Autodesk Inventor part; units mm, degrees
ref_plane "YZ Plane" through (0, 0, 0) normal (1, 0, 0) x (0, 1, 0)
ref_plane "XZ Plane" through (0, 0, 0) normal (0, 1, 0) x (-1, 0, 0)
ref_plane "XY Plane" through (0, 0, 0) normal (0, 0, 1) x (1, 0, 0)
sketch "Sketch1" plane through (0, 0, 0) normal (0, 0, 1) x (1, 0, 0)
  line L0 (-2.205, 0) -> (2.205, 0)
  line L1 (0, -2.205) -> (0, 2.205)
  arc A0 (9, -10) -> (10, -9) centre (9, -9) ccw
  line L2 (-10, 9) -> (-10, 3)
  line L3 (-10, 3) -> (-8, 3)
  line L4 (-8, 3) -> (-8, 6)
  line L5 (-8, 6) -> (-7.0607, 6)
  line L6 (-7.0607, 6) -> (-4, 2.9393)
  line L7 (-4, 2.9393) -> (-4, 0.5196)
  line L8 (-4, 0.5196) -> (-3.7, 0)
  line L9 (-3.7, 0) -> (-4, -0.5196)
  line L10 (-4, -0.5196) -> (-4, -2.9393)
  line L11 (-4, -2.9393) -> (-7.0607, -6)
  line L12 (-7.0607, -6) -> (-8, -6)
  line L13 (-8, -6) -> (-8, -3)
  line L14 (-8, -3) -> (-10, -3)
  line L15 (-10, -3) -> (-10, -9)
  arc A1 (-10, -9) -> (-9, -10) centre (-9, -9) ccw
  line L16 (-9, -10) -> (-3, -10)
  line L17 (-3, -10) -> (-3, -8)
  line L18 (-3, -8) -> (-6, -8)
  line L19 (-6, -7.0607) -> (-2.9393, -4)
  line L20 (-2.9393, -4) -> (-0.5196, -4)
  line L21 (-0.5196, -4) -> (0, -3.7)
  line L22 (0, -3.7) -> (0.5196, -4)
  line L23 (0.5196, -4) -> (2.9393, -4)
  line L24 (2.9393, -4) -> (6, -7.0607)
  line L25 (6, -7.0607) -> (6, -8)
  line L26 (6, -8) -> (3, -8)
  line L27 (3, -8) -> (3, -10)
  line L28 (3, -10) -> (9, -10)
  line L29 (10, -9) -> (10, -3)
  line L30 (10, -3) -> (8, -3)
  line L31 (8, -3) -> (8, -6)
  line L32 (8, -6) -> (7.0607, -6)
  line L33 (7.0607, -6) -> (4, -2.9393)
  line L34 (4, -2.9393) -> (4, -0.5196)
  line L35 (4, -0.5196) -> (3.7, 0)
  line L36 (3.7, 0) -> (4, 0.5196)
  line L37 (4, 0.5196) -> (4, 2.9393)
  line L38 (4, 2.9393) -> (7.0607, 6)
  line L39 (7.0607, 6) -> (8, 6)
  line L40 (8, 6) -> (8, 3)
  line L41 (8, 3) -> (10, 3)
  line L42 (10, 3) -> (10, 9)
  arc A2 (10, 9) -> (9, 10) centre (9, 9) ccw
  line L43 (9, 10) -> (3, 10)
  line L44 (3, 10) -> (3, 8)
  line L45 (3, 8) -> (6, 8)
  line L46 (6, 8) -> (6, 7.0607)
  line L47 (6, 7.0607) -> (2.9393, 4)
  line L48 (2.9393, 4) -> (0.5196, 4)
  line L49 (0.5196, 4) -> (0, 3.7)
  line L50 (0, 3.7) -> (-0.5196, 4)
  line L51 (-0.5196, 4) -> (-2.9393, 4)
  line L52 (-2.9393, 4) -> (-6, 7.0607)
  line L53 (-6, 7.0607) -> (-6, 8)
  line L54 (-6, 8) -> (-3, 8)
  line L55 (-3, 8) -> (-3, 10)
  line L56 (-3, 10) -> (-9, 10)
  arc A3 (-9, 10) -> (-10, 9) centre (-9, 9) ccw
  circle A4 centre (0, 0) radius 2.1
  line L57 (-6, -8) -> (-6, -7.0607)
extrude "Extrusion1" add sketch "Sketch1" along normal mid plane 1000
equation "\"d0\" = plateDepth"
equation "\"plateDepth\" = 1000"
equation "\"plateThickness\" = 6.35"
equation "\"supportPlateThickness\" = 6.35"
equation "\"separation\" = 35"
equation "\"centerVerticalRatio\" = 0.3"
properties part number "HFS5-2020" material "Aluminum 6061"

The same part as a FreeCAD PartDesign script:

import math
import FreeCAD as App
import Part
import Sketcher

V = App.Vector
Q = App.Units.Quantity

doc = App.newDocument("Part")
body = doc.addObject("PartDesign::Body", "Body")

sketch1 = body.newObject("Sketcher::SketchObject", "Sketch")
sketch1.AttachmentSupport = (doc.getObject("XY_Plane"), [""])
sketch1.MapMode = "FlatFace"
sketch1.addGeometry(Part.LineSegment(V(3, -10, 0), V(9, -10, 0)), False)
sketch1.addGeometry(Part.ArcOfCircle(Part.Circle(V(9, -9, 0), V(0, 0, 1), 1), math.radians(-90), math.radians(0)), False)
sketch1.addGeometry(Part.LineSegment(V(10, -9, 0), V(10, -3, 0)), False)
sketch1.addGeometry(Part.LineSegment(V(10, -3, 0), V(8, -3, 0)), False)
sketch1.addGeometry(Part.LineSegment(V(8, -3, 0), V(8, -6, 0)), False)
sketch1.addGeometry(Part.LineSegment(V(8, -6, 0), V(7.0607, -6, 0)), False)
sketch1.addGeometry(Part.LineSegment(V(7.0607, -6, 0), V(4, -2.9393, 0)), False)
sketch1.addGeometry(Part.LineSegment(V(4, -2.9393, 0), V(4, -0.5196, 0)), False)
sketch1.addGeometry(Part.LineSegment(V(4, -0.5196, 0), V(3.7, 0, 0)), False)
sketch1.addGeometry(Part.LineSegment(V(3.7, 0, 0), V(4, 0.5196, 0)), False)
sketch1.addGeometry(Part.LineSegment(V(4, 0.5196, 0), V(4, 2.9393, 0)), False)
sketch1.addGeometry(Part.LineSegment(V(4, 2.9393, 0), V(7.0607, 6, 0)), False)
sketch1.addGeometry(Part.LineSegment(V(7.0607, 6, 0), V(8, 6, 0)), False)
sketch1.addGeometry(Part.LineSegment(V(8, 6, 0), V(8, 3, 0)), False)
sketch1.addGeometry(Part.LineSegment(V(8, 3, 0), V(10, 3, 0)), False)
sketch1.addGeometry(Part.LineSegment(V(10, 3, 0), V(10, 9, 0)), False)
sketch1.addGeometry(Part.ArcOfCircle(Part.Circle(V(9, 9, 0), V(0, 0, 1), 1), math.radians(0), math.radians(90)), False)
sketch1.addGeometry(Part.LineSegment(V(9, 10, 0), V(3, 10, 0)), False)
sketch1.addGeometry(Part.LineSegment(V(3, 10, 0), V(3, 8, 0)), False)
sketch1.addGeometry(Part.LineSegment(V(3, 8, 0), V(6, 8, 0)), False)
sketch1.addGeometry(Part.LineSegment(V(6, 8, 0), V(6, 7.0607, 0)), False)
sketch1.addGeometry(Part.LineSegment(V(6, 7.0607, 0), V(2.9393, 4, 0)), False)
sketch1.addGeometry(Part.LineSegment(V(2.9393, 4, 0), V(0.5196, 4, 0)), False)
sketch1.addGeometry(Part.LineSegment(V(0.5196, 4, 0), V(0, 3.7, 0)), False)
sketch1.addGeometry(Part.LineSegment(V(0, 3.7, 0), V(-0.5196, 4, 0)), False)
sketch1.addGeometry(Part.LineSegment(V(-0.5196, 4, 0), V(-2.9393, 4, 0)), False)
sketch1.addGeometry(Part.LineSegment(V(-2.9393, 4, 0), V(-6, 7.0607, 0)), False)
sketch1.addGeometry(Part.LineSegment(V(-6, 7.0607, 0), V(-6, 8, 0)), False)
sketch1.addGeometry(Part.LineSegment(V(-6, 8, 0), V(-3, 8, 0)), False)
sketch1.addGeometry(Part.LineSegment(V(-3, 8, 0), V(-3, 10, 0)), False)
sketch1.addGeometry(Part.LineSegment(V(-3, 10, 0), V(-9, 10, 0)), False)
sketch1.addGeometry(Part.ArcOfCircle(Part.Circle(V(-9, 9, 0), V(0, 0, 1), 1), math.radians(90), math.radians(180)), False)
sketch1.addGeometry(Part.LineSegment(V(-10, 9, 0), V(-10, 3, 0)), False)
sketch1.addGeometry(Part.LineSegment(V(-10, 3, 0), V(-8, 3, 0)), False)
sketch1.addGeometry(Part.LineSegment(V(-8, 3, 0), V(-8, 6, 0)), False)
sketch1.addGeometry(Part.LineSegment(V(-8, 6, 0), V(-7.0607, 6, 0)), False)
sketch1.addGeometry(Part.LineSegment(V(-7.0607, 6, 0), V(-4, 2.9393, 0)), False)
sketch1.addGeometry(Part.LineSegment(V(-4, 2.9393, 0), V(-4, 0.5196, 0)), False)
sketch1.addGeometry(Part.LineSegment(V(-4, 0.5196, 0), V(-3.7, 0, 0)), False)
sketch1.addGeometry(Part.LineSegment(V(-3.7, 0, 0), V(-4, -0.5196, 0)), False)
sketch1.addGeometry(Part.LineSegment(V(-4, -0.5196, 0), V(-4, -2.9393, 0)), False)
sketch1.addGeometry(Part.LineSegment(V(-4, -2.9393, 0), V(-7.0607, -6, 0)), False)
sketch1.addGeometry(Part.LineSegment(V(-7.0607, -6, 0), V(-8, -6, 0)), False)
sketch1.addGeometry(Part.LineSegment(V(-8, -6, 0), V(-8, -3, 0)), False)
sketch1.addGeometry(Part.LineSegment(V(-8, -3, 0), V(-10, -3, 0)), False)
sketch1.addGeometry(Part.LineSegment(V(-10, -3, 0), V(-10, -9, 0)), False)
sketch1.addGeometry(Part.ArcOfCircle(Part.Circle(V(-9, -9, 0), V(0, 0, 1), 1), math.radians(180), math.radians(270)), False)
sketch1.addGeometry(Part.LineSegment(V(-9, -10, 0), V(-3, -10, 0)), False)
sketch1.addGeometry(Part.LineSegment(V(-3, -10, 0), V(-3, -8, 0)), False)
sketch1.addGeometry(Part.LineSegment(V(-3, -8, 0), V(-6, -8, 0)), False)
sketch1.addGeometry(Part.LineSegment(V(-6, -8, 0), V(-6, -7.0607, 0)), False)
sketch1.addGeometry(Part.LineSegment(V(-6, -7.0607, 0), V(-2.9393, -4, 0)), False)
sketch1.addGeometry(Part.LineSegment(V(-2.9393, -4, 0), V(-0.5196, -4, 0)), False)
sketch1.addGeometry(Part.LineSegment(V(-0.5196, -4, 0), V(0, -3.7, 0)), False)
sketch1.addGeometry(Part.LineSegment(V(0, -3.7, 0), V(0.5196, -4, 0)), False)
sketch1.addGeometry(Part.LineSegment(V(0.5196, -4, 0), V(2.9393, -4, 0)), False)
sketch1.addGeometry(Part.LineSegment(V(2.9393, -4, 0), V(6, -7.0607, 0)), False)
sketch1.addGeometry(Part.LineSegment(V(6, -7.0607, 0), V(6, -8, 0)), False)
sketch1.addGeometry(Part.LineSegment(V(6, -8, 0), V(3, -8, 0)), False)
sketch1.addGeometry(Part.LineSegment(V(3, -8, 0), V(3, -10, 0)), False)
sketch1.addGeometry(Part.Circle(V(0, 0, 0), V(0, 0, 1), 2.1), False)
sketch1.addConstraint(Sketcher.Constraint("Tangent", 0, 2, 1, 1))
sketch1.addConstraint(Sketcher.Constraint("Tangent", 1, 2, 2, 1))
sketch1.addConstraint(Sketcher.Constraint("Coincident", 2, 2, 3, 1))
sketch1.addConstraint(Sketcher.Constraint("Coincident", 3, 2, 4, 1))
sketch1.addConstraint(Sketcher.Constraint("Coincident", 4, 2, 5, 1))
sketch1.addConstraint(Sketcher.Constraint("Coincident", 5, 2, 6, 1))
sketch1.addConstraint(Sketcher.Constraint("Coincident", 6, 2, 7, 1))
sketch1.addConstraint(Sketcher.Constraint("Coincident", 7, 2, 8, 1))
sketch1.addConstraint(Sketcher.Constraint("Coincident", 8, 2, 9, 1))
sketch1.addConstraint(Sketcher.Constraint("Coincident", 9, 2, 10, 1))
sketch1.addConstraint(Sketcher.Constraint("Coincident", 10, 2, 11, 1))
sketch1.addConstraint(Sketcher.Constraint("Coincident", 11, 2, 12, 1))
sketch1.addConstraint(Sketcher.Constraint("Coincident", 12, 2, 13, 1))
sketch1.addConstraint(Sketcher.Constraint("Coincident", 13, 2, 14, 1))
sketch1.addConstraint(Sketcher.Constraint("Coincident", 14, 2, 15, 1))
sketch1.addConstraint(Sketcher.Constraint("Tangent", 15, 2, 16, 1))
sketch1.addConstraint(Sketcher.Constraint("Tangent", 16, 2, 17, 1))
sketch1.addConstraint(Sketcher.Constraint("Coincident", 17, 2, 18, 1))
sketch1.addConstraint(Sketcher.Constraint("Coincident", 18, 2, 19, 1))
sketch1.addConstraint(Sketcher.Constraint("Coincident", 19, 2, 20, 1))
sketch1.addConstraint(Sketcher.Constraint("Coincident", 20, 2, 21, 1))
sketch1.addConstraint(Sketcher.Constraint("Coincident", 21, 2, 22, 1))
sketch1.addConstraint(Sketcher.Constraint("Coincident", 22, 2, 23, 1))
sketch1.addConstraint(Sketcher.Constraint("Coincident", 23, 2, 24, 1))
sketch1.addConstraint(Sketcher.Constraint("Coincident", 24, 2, 25, 1))
sketch1.addConstraint(Sketcher.Constraint("Coincident", 25, 2, 26, 1))
sketch1.addConstraint(Sketcher.Constraint("Coincident", 26, 2, 27, 1))
sketch1.addConstraint(Sketcher.Constraint("Coincident", 27, 2, 28, 1))
sketch1.addConstraint(Sketcher.Constraint("Coincident", 28, 2, 29, 1))
sketch1.addConstraint(Sketcher.Constraint("Coincident", 29, 2, 30, 1))
sketch1.addConstraint(Sketcher.Constraint("Tangent", 30, 2, 31, 1))
sketch1.addConstraint(Sketcher.Constraint("Tangent", 31, 2, 32, 1))
sketch1.addConstraint(Sketcher.Constraint("Coincident", 32, 2, 33, 1))
sketch1.addConstraint(Sketcher.Constraint("Coincident", 33, 2, 34, 1))
sketch1.addConstraint(Sketcher.Constraint("Coincident", 34, 2, 35, 1))
sketch1.addConstraint(Sketcher.Constraint("Coincident", 35, 2, 36, 1))
sketch1.addConstraint(Sketcher.Constraint("Coincident", 36, 2, 37, 1))
sketch1.addConstraint(Sketcher.Constraint("Coincident", 37, 2, 38, 1))
sketch1.addConstraint(Sketcher.Constraint("Coincident", 38, 2, 39, 1))
sketch1.addConstraint(Sketcher.Constraint("Coincident", 39, 2, 40, 1))
sketch1.addConstraint(Sketcher.Constraint("Coincident", 40, 2, 41, 1))
sketch1.addConstraint(Sketcher.Constraint("Coincident", 41, 2, 42, 1))
sketch1.addConstraint(Sketcher.Constraint("Coincident", 42, 2, 43, 1))
sketch1.addConstraint(Sketcher.Constraint("Coincident", 43, 2, 44, 1))
sketch1.addConstraint(Sketcher.Constraint("Coincident", 44, 2, 45, 1))
sketch1.addConstraint(Sketcher.Constraint("Tangent", 45, 2, 46, 1))
sketch1.addConstraint(Sketcher.Constraint("Tangent", 46, 2, 47, 1))
sketch1.addConstraint(Sketcher.Constraint("Coincident", 47, 2, 48, 1))
sketch1.addConstraint(Sketcher.Constraint("Coincident", 48, 2, 49, 1))
sketch1.addConstraint(Sketcher.Constraint("Coincident", 49, 2, 50, 1))
sketch1.addConstraint(Sketcher.Constraint("Coincident", 50, 2, 51, 1))
sketch1.addConstraint(Sketcher.Constraint("Coincident", 51, 2, 52, 1))
sketch1.addConstraint(Sketcher.Constraint("Coincident", 52, 2, 53, 1))
sketch1.addConstraint(Sketcher.Constraint("Coincident", 53, 2, 54, 1))
sketch1.addConstraint(Sketcher.Constraint("Coincident", 54, 2, 55, 1))
sketch1.addConstraint(Sketcher.Constraint("Coincident", 55, 2, 56, 1))
sketch1.addConstraint(Sketcher.Constraint("Coincident", 56, 2, 57, 1))
sketch1.addConstraint(Sketcher.Constraint("Coincident", 57, 2, 58, 1))
sketch1.addConstraint(Sketcher.Constraint("Coincident", 58, 2, 59, 1))
sketch1.addConstraint(Sketcher.Constraint("Coincident", 59, 2, 0, 1))
sketch1.addConstraint(Sketcher.Constraint("Horizontal", 0))
sketch1.addConstraint(Sketcher.Constraint("Vertical", 2))
sketch1.addConstraint(Sketcher.Constraint("Horizontal", 3))
sketch1.addConstraint(Sketcher.Constraint("Vertical", 4))
sketch1.addConstraint(Sketcher.Constraint("Horizontal", 5))
sketch1.addConstraint(Sketcher.Constraint("Vertical", 7))
sketch1.addConstraint(Sketcher.Constraint("Vertical", 10))
sketch1.addConstraint(Sketcher.Constraint("Horizontal", 12))
sketch1.addConstraint(Sketcher.Constraint("Vertical", 13))
sketch1.addConstraint(Sketcher.Constraint("Horizontal", 14))
sketch1.addConstraint(Sketcher.Constraint("Vertical", 15))
sketch1.addConstraint(Sketcher.Constraint("Horizontal", 17))
sketch1.addConstraint(Sketcher.Constraint("Vertical", 18))
sketch1.addConstraint(Sketcher.Constraint("Horizontal", 19))
sketch1.addConstraint(Sketcher.Constraint("Vertical", 20))
sketch1.addConstraint(Sketcher.Constraint("Horizontal", 22))
sketch1.addConstraint(Sketcher.Constraint("Horizontal", 25))
sketch1.addConstraint(Sketcher.Constraint("Vertical", 27))
sketch1.addConstraint(Sketcher.Constraint("Horizontal", 28))
sketch1.addConstraint(Sketcher.Constraint("Vertical", 29))
sketch1.addConstraint(Sketcher.Constraint("Horizontal", 30))
sketch1.addConstraint(Sketcher.Constraint("Vertical", 32))
sketch1.addConstraint(Sketcher.Constraint("Horizontal", 33))
sketch1.addConstraint(Sketcher.Constraint("Vertical", 34))
sketch1.addConstraint(Sketcher.Constraint("Horizontal", 35))
sketch1.addConstraint(Sketcher.Constraint("Vertical", 37))
sketch1.addConstraint(Sketcher.Constraint("Vertical", 40))
sketch1.addConstraint(Sketcher.Constraint("Horizontal", 42))
sketch1.addConstraint(Sketcher.Constraint("Vertical", 43))
sketch1.addConstraint(Sketcher.Constraint("Horizontal", 44))
sketch1.addConstraint(Sketcher.Constraint("Vertical", 45))
sketch1.addConstraint(Sketcher.Constraint("Horizontal", 47))
sketch1.addConstraint(Sketcher.Constraint("Vertical", 48))
sketch1.addConstraint(Sketcher.Constraint("Horizontal", 49))
sketch1.addConstraint(Sketcher.Constraint("Vertical", 50))
sketch1.addConstraint(Sketcher.Constraint("Horizontal", 52))
sketch1.addConstraint(Sketcher.Constraint("Horizontal", 55))
sketch1.addConstraint(Sketcher.Constraint("Vertical", 57))
sketch1.addConstraint(Sketcher.Constraint("Horizontal", 58))
sketch1.addConstraint(Sketcher.Constraint("Vertical", 59))
sketch1.addConstraint(Sketcher.Constraint("Coincident", 60, 3, -1, 1))
sketch1.addConstraint(Sketcher.Constraint("Equal", 1, 16))
sketch1.addConstraint(Sketcher.Constraint("Equal", 16, 31))
sketch1.addConstraint(Sketcher.Constraint("Equal", 31, 46))
sketch1.addConstraint(Sketcher.Constraint("Symmetric", 1, 3, 31, 3, -1, 1))
sketch1.addConstraint(Sketcher.Constraint("Symmetric", 16, 3, 46, 3, -1, 1))
sketch1.addConstraint(Sketcher.Constraint("Symmetric", 3, 2, 33, 2, -1, 1))
sketch1.addConstraint(Sketcher.Constraint("Symmetric", 5, 2, 35, 2, -1, 1))
sketch1.addConstraint(Sketcher.Constraint("Symmetric", 6, 2, 36, 2, -1, 1))
sketch1.addConstraint(Sketcher.Constraint("Symmetric", 8, 2, 38, 2, -1, 1))
sketch1.addConstraint(Sketcher.Constraint("Symmetric", 9, 2, 39, 2, -1, 1))
sketch1.addConstraint(Sketcher.Constraint("Symmetric", 11, 2, 41, 2, -1, 1))
sketch1.addConstraint(Sketcher.Constraint("Symmetric", 13, 2, 43, 2, -1, 1))
sketch1.addConstraint(Sketcher.Constraint("Symmetric", 18, 2, 48, 2, -1, 1))
sketch1.addConstraint(Sketcher.Constraint("Symmetric", 20, 2, 50, 2, -1, 1))
sketch1.addConstraint(Sketcher.Constraint("Symmetric", 21, 2, 51, 2, -1, 1))
sketch1.addConstraint(Sketcher.Constraint("Symmetric", 23, 2, 53, 2, -1, 1))
sketch1.addConstraint(Sketcher.Constraint("Symmetric", 24, 2, 54, 2, -1, 1))
sketch1.addConstraint(Sketcher.Constraint("Symmetric", 26, 2, 56, 2, -1, 1))
sketch1.addConstraint(Sketcher.Constraint("Symmetric", 28, 2, 58, 2, -1, 1))
sketch1.addConstraint(Sketcher.Constraint("Symmetric", 16, 3, 31, 3, -2))
sketch1.addConstraint(Sketcher.Constraint("Symmetric", 22, 2, 24, 2, -2))
sketch1.addConstraint(Sketcher.Constraint("Symmetric", 20, 2, 26, 2, -2))
sketch1.addConstraint(Sketcher.Constraint("Symmetric", 18, 2, 28, 2, -2))
sketch1.addConstraint(Sketcher.Constraint("Symmetric", 13, 2, 33, 2, -2))
sketch1.addConstraint(Sketcher.Constraint("Symmetric", 11, 2, 35, 2, -2))
sketch1.addConstraint(Sketcher.Constraint("Symmetric", 10, 2, 36, 2, -2))
sketch1.addConstraint(Sketcher.Constraint("PointOnObject", 8, 2, -1))
sketch1.addConstraint(Sketcher.Constraint("PointOnObject", 23, 2, -2))
sketch1.addConstraint(Sketcher.Constraint("Perpendicular", 6, 11))
sketch1.addConstraint(Sketcher.Constraint("Parallel", 11, 21))
sketch1.addConstraint(Sketcher.Constraint("Perpendicular", 8, 23))
sketch1.addConstraint(Sketcher.Constraint("Perpendicular", 9, 24))
sketch1.addConstraint(Sketcher.Constraint("Perpendicular", 21, 26))
sketch1.addConstraint(Sketcher.Constraint("Perpendicular", 23, 38))
sketch1.addConstraint(Sketcher.Constraint("Perpendicular", 36, 41))
sketch1.addConstraint(Sketcher.Constraint("Perpendicular", 38, 53))
sketch1.addConstraint(Sketcher.Constraint("Perpendicular", 51, 56))
sketch1.addConstraint(Sketcher.Constraint("Equal", 47, 2))
sketch1.addConstraint(Sketcher.Constraint("Equal", 58, 4))
sketch1.addConstraint(Sketcher.Constraint("Equal", 55, 7))
sketch1.addConstraint(Sketcher.Constraint("Equal", 44, 18))
sketch1.addConstraint(Sketcher.Constraint("Equal", 42, 20))
sketch1.addConstraint(Sketcher.Constraint("Equal", 11, 21))
sketch1.addConstraint(Sketcher.Constraint("Equal", 9, 23))
sketch1.addConstraint(Sketcher.Constraint("Radius", 1, 1.0))
sketch1.addConstraint(Sketcher.Constraint("Diameter", 60, 4.2))
sketch1.addConstraint(Sketcher.Constraint("DistanceX", 0, 1, 0, 2, 6.0))
sketch1.addConstraint(Sketcher.Constraint("DistanceX", 3, 2, 3, 1, 2.0))
sketch1.addConstraint(Sketcher.Constraint("DistanceX", 19, 1, 19, 2, 3.0))
sketch1.addConstraint(Sketcher.Constraint("Angle", 8, Q("120.0007 deg")))
sketch1.addConstraint(Sketcher.Constraint("DistanceX", -1, 1, 1, 3, 9.0))
sketch1.addConstraint(Sketcher.Constraint("DistanceX", -1, 1, 6, 2, 4.0))
sketch1.addConstraint(Sketcher.Constraint("Distance", 8, 0.6))
sketch1.addConstraint(Sketcher.Constraint("DistanceX", 5, 2, 5, 1, 0.9393))
pad1 = body.newObject("PartDesign::Pad", "Pad")
pad1.Profile = sketch1
pad1.Length = 1000
pad1.Midplane = True

doc.recompute()
